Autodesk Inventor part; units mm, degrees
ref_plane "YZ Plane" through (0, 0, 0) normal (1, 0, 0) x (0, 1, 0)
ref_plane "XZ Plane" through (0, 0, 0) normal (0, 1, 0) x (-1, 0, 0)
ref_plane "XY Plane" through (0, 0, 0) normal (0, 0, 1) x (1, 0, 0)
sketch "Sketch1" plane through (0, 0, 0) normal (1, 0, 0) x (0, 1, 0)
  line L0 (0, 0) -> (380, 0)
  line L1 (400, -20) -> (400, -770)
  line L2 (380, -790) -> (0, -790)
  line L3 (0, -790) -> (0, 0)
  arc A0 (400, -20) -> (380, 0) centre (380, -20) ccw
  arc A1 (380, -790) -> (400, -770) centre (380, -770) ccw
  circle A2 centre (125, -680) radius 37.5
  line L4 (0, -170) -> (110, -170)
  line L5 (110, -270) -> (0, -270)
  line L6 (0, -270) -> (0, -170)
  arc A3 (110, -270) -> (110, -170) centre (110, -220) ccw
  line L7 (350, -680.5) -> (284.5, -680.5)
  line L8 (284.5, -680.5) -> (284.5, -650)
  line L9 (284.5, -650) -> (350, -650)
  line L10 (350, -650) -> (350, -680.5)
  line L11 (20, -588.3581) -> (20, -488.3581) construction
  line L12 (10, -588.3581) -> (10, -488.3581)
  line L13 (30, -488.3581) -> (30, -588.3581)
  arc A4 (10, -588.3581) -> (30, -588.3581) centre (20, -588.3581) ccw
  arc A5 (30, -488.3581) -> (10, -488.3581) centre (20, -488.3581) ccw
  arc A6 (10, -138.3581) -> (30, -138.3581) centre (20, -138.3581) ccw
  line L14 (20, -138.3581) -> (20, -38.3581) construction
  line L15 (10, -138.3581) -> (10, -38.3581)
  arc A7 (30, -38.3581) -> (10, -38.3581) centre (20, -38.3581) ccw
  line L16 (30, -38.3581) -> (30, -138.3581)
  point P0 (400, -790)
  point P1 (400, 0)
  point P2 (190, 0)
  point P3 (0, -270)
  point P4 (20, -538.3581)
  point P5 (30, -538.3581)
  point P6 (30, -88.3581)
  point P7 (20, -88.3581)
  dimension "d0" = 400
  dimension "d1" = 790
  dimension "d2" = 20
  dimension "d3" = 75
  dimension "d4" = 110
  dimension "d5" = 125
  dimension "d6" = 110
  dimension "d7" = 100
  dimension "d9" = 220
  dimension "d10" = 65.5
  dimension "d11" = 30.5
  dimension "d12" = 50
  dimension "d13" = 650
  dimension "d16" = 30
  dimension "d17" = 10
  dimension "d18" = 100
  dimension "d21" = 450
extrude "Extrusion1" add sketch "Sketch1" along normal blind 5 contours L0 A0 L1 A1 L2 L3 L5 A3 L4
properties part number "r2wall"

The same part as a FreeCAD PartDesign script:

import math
import FreeCAD as App
import Part
import Sketcher
Q = App.Units.Quantity


def add_polygon(sketch, points):
    """Adds a closed chain of lines whose ends are joined by coincident constraints."""
    first, n = sketch.GeometryCount, len(points)
    for a, b in zip(points, points[1:] + points[:1]):
        sketch.addGeometry(Part.LineSegment(App.Vector(*a, 0), App.Vector(*b, 0)), False)
    for i in range(n):
        sketch.addConstraint(Sketcher.Constraint("Coincident", first + i, 2, first + (i + 1) % n, 1))

doc = App.newDocument("Part")
body = doc.addObject("PartDesign::Body", "Body")

# Sketch on YZ plane
sketch1 = body.newObject("Sketcher::SketchObject", "Sketch")
sketch1.AttachmentSupport = (doc.getObject("YZ_Plane"), [""])
sketch1.MapMode = "FlatFace"
sketch1.addGeometry(Part.LineSegment(App.Vector(380, 0, 0), App.Vector(0, 0, 0)), False)  # 0
sketch1.addGeometry(Part.LineSegment(App.Vector(0, 0, 0), App.Vector(0, -170, 0)), False)  # 1
sketch1.addGeometry(Part.LineSegment(App.Vector(0, -170, 0), App.Vector(110, -170, 0)), False)  # 2
sketch1.addGeometry(Part.ArcOfCircle(Part.Circle(App.Vector(110, -220, 0), App.Vector(0, 0, 1), 50), math.radians(-90), math.radians(90)), False)  # 3
sketch1.addGeometry(Part.LineSegment(App.Vector(110, -270, 0), App.Vector(0, -270, 0)), False)  # 4
sketch1.addGeometry(Part.LineSegment(App.Vector(0, -270, 0), App.Vector(0, -790, 0)), False)  # 5
sketch1.addGeometry(Part.LineSegment(App.Vector(0, -790, 0), App.Vector(380, -790, 0)), False)  # 6
sketch1.addGeometry(Part.ArcOfCircle(Part.Circle(App.Vector(380, -770, 0), App.Vector(0, 0, 1), 20), math.radians(-90), math.radians(0)), False)  # 7
sketch1.addGeometry(Part.LineSegment(App.Vector(400, -770, 0), App.Vector(400, -20, 0)), False)  # 8
sketch1.addGeometry(Part.ArcOfCircle(Part.Circle(App.Vector(380, -20, 0), App.Vector(0, 0, 1), 20), math.radians(0), math.radians(90)), False)  # 9
sketch1.addGeometry(Part.Circle(App.Vector(125, -680, 0), App.Vector(0, 0, 1), 37.5), False)  # 10
sketch1.addGeometry(Part.ArcOfCircle(Part.Circle(App.Vector(20, -588.3581, 0), App.Vector(0, 0, 1), 10), math.radians(180), math.radians(360)), False)  # 11
sketch1.addGeometry(Part.LineSegment(App.Vector(10, -588.3581, 0), App.Vector(10, -488.3581, 0)), False)  # 12
sketch1.addGeometry(Part.ArcOfCircle(Part.Circle(App.Vector(20, -488.3581, 0), App.Vector(0, 0, 1), 10), math.radians(0), math.radians(180)), False)  # 13
sketch1.addGeometry(Part.LineSegment(App.Vector(30, -488.3581, 0), App.Vector(30, -588.3581, 0)), False)  # 14
add_polygon(sketch1, [(350, -650), (350, -680.5), (284.5, -680.5), (284.5, -650)])  # lines 15-18
sketch1.addGeometry(Part.ArcOfCircle(Part.Circle(App.Vector(20, -138.3581, 0), App.Vector(0, 0, 1), 10), math.radians(180), math.radians(360)), False)  # 19
sketch1.addGeometry(Part.LineSegment(App.Vector(10, -138.3581, 0), App.Vector(10, -38.3581, 0)), False)  # 20
sketch1.addGeometry(Part.ArcOfCircle(Part.Circle(App.Vector(20, -38.3581, 0), App.Vector(0, 0, 1), 10), math.radians(0), math.radians(180)), False)  # 21
sketch1.addGeometry(Part.LineSegment(App.Vector(30, -38.3581, 0), App.Vector(30, -138.3581, 0)), False)  # 22
sketch1.addConstraint(Sketcher.Constraint("Coincident", 0, 2, 1, 1))
sketch1.addConstraint(Sketcher.Constraint("Coincident", 1, 2, 2, 1))
sketch1.addConstraint(Sketcher.Constraint("Tangent", 2, 2, 3, 2))
sketch1.addConstraint(Sketcher.Constraint("Tangent", 3, 1, 4, 1))
sketch1.addConstraint(Sketcher.Constraint("Coincident", 4, 2, 5, 1))
sketch1.addConstraint(Sketcher.Constraint("Coincident", 5, 2, 6, 1))
sketch1.addConstraint(Sketcher.Constraint("Tangent", 6, 2, 7, 1))
sketch1.addConstraint(Sketcher.Constraint("Tangent", 7, 2, 8, 1))
sketch1.addConstraint(Sketcher.Constraint("Tangent", 8, 2, 9, 1))
sketch1.addConstraint(Sketcher.Constraint("Tangent", 9, 2, 0, 1))
sketch1.addConstraint(Sketcher.Constraint("Tangent", 11, 1, 12, 1))
sketch1.addConstraint(Sketcher.Constraint("Tangent", 12, 2, 13, 2))
sketch1.addConstraint(Sketcher.Constraint("Tangent", 13, 1, 14, 1))
sketch1.addConstraint(Sketcher.Constraint("Tangent", 14, 2, 11, 2))
sketch1.addConstraint(Sketcher.Constraint("Tangent", 19, 1, 20, 1))
sketch1.addConstraint(Sketcher.Constraint("Tangent", 20, 2, 21, 2))
sketch1.addConstraint(Sketcher.Constraint("Tangent", 21, 1, 22, 1))
sketch1.addConstraint(Sketcher.Constraint("Tangent", 22, 2, 19, 2))
sketch1.addConstraint(Sketcher.Constraint("Horizontal", 0))
sketch1.addConstraint(Sketcher.Constraint("Vertical", 1))
sketch1.addConstraint(Sketcher.Constraint("Horizontal", 2))
sketch1.addConstraint(Sketcher.Constraint("Horizontal", 4))
sketch1.addConstraint(Sketcher.Constraint("Vertical", 5))
sketch1.addConstraint(Sketcher.Constraint("Horizontal", 6))
sketch1.addConstraint(Sketcher.Constraint("Vertical", 8))
sketch1.addConstraint(Sketcher.Constraint("Vertical", 12))
sketch1.addConstraint(Sketcher.Constraint("Vertical", 14))
sketch1.addConstraint(Sketcher.Constraint("Vertical", 15))
sketch1.addConstraint(Sketcher.Constraint("Horizontal", 16))
sketch1.addConstraint(Sketcher.Constraint("Vertical", 17))
sketch1.addConstraint(Sketcher.Constraint("Horizontal", 18))
sketch1.addConstraint(Sketcher.Constraint("Vertical", 20))
sketch1.addConstraint(Sketcher.Constraint("Vertical", 22))
sketch1.addConstraint(Sketcher.Constraint("Coincident", 0, 2, -1, 1))
sketch1.addConstraint(Sketcher.Constraint("Equal", 7, 9))
sketch1.addConstraint(Sketcher.Constraint("Equal", 13, 19))
sketch1.addConstraint(Sketcher.Constraint("PointOnObject", 4, 2, -2))
sketch1.addConstraint(Sketcher.Constraint("Vertical", 13, 3, 19, 3))
sketch1.addConstraint(Sketcher.Constraint("Equal", 14, 20))
sketch1.addConstraint(Sketcher.Constraint("Diameter", 10, Q("75 mm")))
sketch1.addConstraint(Sketcher.Constraint("Radius", 3, Q("50 mm")))
sketch1.addConstraint(Sketcher.Constraint("Radius", 7, Q("20 mm")))
sketch1.addConstraint(Sketcher.Constraint("Radius", 11, Q("10 mm")))
sketch1.addConstraint(Sketcher.Constraint("DistanceX", 2, 1, 2, 2, Q("110 mm")))
sketch1.addConstraint(Sketcher.Constraint("DistanceY", 12, 1, 12, 2, Q("100 mm")))
sketch1.addConstraint(Sketcher.Constraint("DistanceX", 16, 2, 16, 1, Q("65.5 mm")))
sketch1.addConstraint(Sketcher.Constraint("DistanceY", 15, 2, 15, 1, Q("30.5 mm")))
sketch1.addConstraint(Sketcher.Constraint("DistanceY", 3, 3, -1, 1, Q("220 mm")))
sketch1.addConstraint(Sketcher.Constraint("DistanceX", -1, 1, 10, 3, Q("125 mm")))
sketch1.addConstraint(Sketcher.Constraint("DistanceX", -1, 1, 11, 3, Q("20 mm")))
sketch1.addConstraint(Sketcher.Constraint("DistanceY", 5, 2, -1, 1, Q("790 mm")))
sketch1.addConstraint(Sketcher.Constraint("DistanceX", -1, 1, 7, 2, Q("400 mm")))
sketch1.addConstraint(Sketcher.Constraint("DistanceY", 17, 2, -1, 1, Q("650 mm")))
sketch1.addConstraint(Sketcher.Constraint("DistanceY", 11, 3, 19, 3, Q("450 mm")))
sketch1.addConstraint(Sketcher.Constraint("DistanceY", 5, 2, 10, 3, Q("110 mm")))
sketch1.addConstraint(Sketcher.Constraint("DistanceX", 15, 2, 7, 3, Q("30 mm")))
sketch1.addConstraint(Sketcher.Constraint("DistanceY", 11, 3, -1, 1, Q("588.358 mm")))
pad1 = body.newObject("PartDesign::Pad", "Pad")
pad1.Profile = sketch1
pad1.Length = 5

doc.recompute()
